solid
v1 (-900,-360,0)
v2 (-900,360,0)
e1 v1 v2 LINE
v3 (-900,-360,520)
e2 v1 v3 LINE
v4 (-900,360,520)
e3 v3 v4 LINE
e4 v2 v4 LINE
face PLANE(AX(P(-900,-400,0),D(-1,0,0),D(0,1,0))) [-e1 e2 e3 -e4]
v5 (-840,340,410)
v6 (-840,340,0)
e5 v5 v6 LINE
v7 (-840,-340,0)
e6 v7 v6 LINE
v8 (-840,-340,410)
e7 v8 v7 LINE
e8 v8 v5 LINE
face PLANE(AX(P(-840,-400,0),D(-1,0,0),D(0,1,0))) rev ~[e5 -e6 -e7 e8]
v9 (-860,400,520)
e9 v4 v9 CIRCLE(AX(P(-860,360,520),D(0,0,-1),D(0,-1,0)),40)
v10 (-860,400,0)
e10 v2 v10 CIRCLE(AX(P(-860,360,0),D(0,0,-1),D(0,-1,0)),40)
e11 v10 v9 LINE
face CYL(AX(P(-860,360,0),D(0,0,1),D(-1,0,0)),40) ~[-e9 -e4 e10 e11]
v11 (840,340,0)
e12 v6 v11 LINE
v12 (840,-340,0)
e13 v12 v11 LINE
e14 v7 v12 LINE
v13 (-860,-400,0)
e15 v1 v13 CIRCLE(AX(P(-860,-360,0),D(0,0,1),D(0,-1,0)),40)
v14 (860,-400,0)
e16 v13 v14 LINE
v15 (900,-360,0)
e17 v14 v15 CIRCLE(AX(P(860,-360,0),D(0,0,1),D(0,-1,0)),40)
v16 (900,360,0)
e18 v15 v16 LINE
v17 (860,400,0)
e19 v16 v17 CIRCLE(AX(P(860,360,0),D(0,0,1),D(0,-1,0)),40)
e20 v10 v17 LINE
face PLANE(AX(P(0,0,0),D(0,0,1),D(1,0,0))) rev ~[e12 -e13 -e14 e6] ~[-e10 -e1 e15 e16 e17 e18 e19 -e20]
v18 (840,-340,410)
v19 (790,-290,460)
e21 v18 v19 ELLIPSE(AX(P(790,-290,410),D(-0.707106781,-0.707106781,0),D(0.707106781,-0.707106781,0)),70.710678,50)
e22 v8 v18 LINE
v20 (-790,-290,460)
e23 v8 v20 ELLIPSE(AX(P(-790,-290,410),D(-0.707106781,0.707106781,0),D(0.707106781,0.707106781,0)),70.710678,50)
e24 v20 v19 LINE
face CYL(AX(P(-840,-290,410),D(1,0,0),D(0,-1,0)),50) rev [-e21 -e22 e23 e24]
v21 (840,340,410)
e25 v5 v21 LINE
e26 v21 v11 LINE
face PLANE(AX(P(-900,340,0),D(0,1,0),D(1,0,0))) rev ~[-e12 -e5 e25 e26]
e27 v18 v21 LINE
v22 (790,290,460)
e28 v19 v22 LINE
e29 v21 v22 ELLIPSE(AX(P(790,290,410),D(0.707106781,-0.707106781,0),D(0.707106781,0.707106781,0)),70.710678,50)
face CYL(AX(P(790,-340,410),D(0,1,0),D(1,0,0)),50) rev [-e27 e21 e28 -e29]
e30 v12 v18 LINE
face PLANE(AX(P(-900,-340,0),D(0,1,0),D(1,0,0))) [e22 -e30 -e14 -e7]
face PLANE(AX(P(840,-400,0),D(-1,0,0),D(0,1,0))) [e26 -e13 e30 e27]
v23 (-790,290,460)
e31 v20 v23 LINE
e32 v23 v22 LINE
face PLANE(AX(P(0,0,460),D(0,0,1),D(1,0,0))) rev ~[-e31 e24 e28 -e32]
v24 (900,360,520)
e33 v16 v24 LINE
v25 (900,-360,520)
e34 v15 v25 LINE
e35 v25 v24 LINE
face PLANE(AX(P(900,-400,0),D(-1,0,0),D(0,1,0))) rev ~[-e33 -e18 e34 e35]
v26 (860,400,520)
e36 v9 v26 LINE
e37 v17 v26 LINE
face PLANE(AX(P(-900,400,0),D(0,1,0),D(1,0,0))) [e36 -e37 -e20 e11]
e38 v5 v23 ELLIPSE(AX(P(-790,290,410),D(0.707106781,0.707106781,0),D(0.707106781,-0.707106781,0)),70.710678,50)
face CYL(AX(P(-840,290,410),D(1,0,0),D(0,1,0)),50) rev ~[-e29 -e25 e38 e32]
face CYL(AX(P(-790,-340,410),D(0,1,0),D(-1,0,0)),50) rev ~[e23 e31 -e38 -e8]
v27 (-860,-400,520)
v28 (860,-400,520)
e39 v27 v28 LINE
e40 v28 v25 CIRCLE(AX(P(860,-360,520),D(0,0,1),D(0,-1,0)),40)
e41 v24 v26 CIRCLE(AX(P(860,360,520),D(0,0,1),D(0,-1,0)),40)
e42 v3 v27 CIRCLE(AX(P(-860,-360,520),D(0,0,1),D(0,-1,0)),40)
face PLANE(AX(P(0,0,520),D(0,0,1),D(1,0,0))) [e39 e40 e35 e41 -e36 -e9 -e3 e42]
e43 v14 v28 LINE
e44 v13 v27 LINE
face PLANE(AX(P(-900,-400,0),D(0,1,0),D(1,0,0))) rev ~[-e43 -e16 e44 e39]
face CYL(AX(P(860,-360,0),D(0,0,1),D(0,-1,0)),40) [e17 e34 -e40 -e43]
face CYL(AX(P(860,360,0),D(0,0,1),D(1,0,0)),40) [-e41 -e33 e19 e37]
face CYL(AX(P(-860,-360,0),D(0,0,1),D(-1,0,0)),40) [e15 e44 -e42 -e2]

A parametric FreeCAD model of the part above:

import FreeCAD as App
import Part
import Sketcher

V = App.Vector


def edges_at(feature, points):
    """Names of the edges that pass closest to the given points."""
    edges = feature.Shape.Edges
    near = lambda p: min(range(len(edges)), key=lambda i: edges[i].distToShape(Part.Vertex(*p))[0])
    return sorted({f"Edge{near(p) + 1}" for p in points})


def faces_at(feature, points):
    """Names of the faces that lie closest to the given points."""
    faces = feature.Shape.Faces
    near = lambda p: min(range(len(faces)), key=lambda i: faces[i].distToShape(Part.Vertex(*p))[0])
    return sorted({f"Face{near(p) + 1}" for p in points})

doc = App.newDocument("Part")
body = doc.addObject("PartDesign::Body", "Body")

# Sketch on XY plane
sketch1 = doc.addObject("Sketcher::SketchObject", "Sketch")
body.addObject(sketch1)
sketch1.AttachmentSupport = (doc.XY_Plane, [""])
sketch1.MapMode = "FlatFace"
sketch1.addGeometry(Part.LineSegment(V(-900, 400, 0), V(-900, -400, 0)), False)
sketch1.addGeometry(Part.LineSegment(V(-900, -400, 0), V(900, -400, 0)), False)
sketch1.addGeometry(Part.LineSegment(V(900, -400, 0), V(900, 400, 0)), False)
sketch1.addGeometry(Part.LineSegment(V(900, 400, 0), V(-900, 400, 0)), False)
sketch1.addConstraint(Sketcher.Constraint("Coincident", 0, 2, 1, 1))
sketch1.addConstraint(Sketcher.Constraint("Coincident", 1, 2, 2, 1))
sketch1.addConstraint(Sketcher.Constraint("Coincident", 2, 2, 3, 1))
sketch1.addConstraint(Sketcher.Constraint("Coincident", 3, 2, 0, 1))
sketch1.addConstraint(Sketcher.Constraint("Vertical", 0))
sketch1.addConstraint(Sketcher.Constraint("Horizontal", 1))
sketch1.addConstraint(Sketcher.Constraint("Vertical", 2))
sketch1.addConstraint(Sketcher.Constraint("Horizontal", 3))
sketch1.addConstraint(Sketcher.Constraint("Symmetric", 0, 2, 2, 2, -1, 1))
sketch1.addConstraint(Sketcher.Constraint("DistanceX", 1, 1, 1, 2, 1800.0))
sketch1.addConstraint(Sketcher.Constraint("DistanceY", 0, 2, 0, 1, 800.0))
pad1 = doc.addObject("PartDesign::Pad", "Pad")
body.addObject(pad1)
pad1.Profile = sketch1
pad1.Length = 520
doc.recompute()

thickness = doc.addObject("PartDesign::Thickness", "Thickness")
body.addObject(thickness)
thickness.Base = (pad1, faces_at(pad1, [(0, 0, 0)]))
thickness.Value = 60
thickness.Reversed = True
thickness.Join = "Arc"
doc.recompute()

fillet = doc.addObject("PartDesign::Fillet", "Fillet")
body.addObject(fillet)
fillet.Base = (thickness, edges_at(thickness, [
    (0, -340, 460),
    (840, 0, 460),
    (0, 340, 460),
    (-840, 0, 460),
]))
fillet.Radius = 50
doc.recompute()

fillet2 = doc.addObject("PartDesign::Fillet", "Fillet001")
body.addObject(fillet2)
fillet2.Base = (fillet, edges_at(fillet, [
    (900, 400, 260),
    (900, -400, 260),
    (-900, -400, 260),
    (-900, 400, 260),
]))
fillet2.Radius = 40

doc.recompute()
